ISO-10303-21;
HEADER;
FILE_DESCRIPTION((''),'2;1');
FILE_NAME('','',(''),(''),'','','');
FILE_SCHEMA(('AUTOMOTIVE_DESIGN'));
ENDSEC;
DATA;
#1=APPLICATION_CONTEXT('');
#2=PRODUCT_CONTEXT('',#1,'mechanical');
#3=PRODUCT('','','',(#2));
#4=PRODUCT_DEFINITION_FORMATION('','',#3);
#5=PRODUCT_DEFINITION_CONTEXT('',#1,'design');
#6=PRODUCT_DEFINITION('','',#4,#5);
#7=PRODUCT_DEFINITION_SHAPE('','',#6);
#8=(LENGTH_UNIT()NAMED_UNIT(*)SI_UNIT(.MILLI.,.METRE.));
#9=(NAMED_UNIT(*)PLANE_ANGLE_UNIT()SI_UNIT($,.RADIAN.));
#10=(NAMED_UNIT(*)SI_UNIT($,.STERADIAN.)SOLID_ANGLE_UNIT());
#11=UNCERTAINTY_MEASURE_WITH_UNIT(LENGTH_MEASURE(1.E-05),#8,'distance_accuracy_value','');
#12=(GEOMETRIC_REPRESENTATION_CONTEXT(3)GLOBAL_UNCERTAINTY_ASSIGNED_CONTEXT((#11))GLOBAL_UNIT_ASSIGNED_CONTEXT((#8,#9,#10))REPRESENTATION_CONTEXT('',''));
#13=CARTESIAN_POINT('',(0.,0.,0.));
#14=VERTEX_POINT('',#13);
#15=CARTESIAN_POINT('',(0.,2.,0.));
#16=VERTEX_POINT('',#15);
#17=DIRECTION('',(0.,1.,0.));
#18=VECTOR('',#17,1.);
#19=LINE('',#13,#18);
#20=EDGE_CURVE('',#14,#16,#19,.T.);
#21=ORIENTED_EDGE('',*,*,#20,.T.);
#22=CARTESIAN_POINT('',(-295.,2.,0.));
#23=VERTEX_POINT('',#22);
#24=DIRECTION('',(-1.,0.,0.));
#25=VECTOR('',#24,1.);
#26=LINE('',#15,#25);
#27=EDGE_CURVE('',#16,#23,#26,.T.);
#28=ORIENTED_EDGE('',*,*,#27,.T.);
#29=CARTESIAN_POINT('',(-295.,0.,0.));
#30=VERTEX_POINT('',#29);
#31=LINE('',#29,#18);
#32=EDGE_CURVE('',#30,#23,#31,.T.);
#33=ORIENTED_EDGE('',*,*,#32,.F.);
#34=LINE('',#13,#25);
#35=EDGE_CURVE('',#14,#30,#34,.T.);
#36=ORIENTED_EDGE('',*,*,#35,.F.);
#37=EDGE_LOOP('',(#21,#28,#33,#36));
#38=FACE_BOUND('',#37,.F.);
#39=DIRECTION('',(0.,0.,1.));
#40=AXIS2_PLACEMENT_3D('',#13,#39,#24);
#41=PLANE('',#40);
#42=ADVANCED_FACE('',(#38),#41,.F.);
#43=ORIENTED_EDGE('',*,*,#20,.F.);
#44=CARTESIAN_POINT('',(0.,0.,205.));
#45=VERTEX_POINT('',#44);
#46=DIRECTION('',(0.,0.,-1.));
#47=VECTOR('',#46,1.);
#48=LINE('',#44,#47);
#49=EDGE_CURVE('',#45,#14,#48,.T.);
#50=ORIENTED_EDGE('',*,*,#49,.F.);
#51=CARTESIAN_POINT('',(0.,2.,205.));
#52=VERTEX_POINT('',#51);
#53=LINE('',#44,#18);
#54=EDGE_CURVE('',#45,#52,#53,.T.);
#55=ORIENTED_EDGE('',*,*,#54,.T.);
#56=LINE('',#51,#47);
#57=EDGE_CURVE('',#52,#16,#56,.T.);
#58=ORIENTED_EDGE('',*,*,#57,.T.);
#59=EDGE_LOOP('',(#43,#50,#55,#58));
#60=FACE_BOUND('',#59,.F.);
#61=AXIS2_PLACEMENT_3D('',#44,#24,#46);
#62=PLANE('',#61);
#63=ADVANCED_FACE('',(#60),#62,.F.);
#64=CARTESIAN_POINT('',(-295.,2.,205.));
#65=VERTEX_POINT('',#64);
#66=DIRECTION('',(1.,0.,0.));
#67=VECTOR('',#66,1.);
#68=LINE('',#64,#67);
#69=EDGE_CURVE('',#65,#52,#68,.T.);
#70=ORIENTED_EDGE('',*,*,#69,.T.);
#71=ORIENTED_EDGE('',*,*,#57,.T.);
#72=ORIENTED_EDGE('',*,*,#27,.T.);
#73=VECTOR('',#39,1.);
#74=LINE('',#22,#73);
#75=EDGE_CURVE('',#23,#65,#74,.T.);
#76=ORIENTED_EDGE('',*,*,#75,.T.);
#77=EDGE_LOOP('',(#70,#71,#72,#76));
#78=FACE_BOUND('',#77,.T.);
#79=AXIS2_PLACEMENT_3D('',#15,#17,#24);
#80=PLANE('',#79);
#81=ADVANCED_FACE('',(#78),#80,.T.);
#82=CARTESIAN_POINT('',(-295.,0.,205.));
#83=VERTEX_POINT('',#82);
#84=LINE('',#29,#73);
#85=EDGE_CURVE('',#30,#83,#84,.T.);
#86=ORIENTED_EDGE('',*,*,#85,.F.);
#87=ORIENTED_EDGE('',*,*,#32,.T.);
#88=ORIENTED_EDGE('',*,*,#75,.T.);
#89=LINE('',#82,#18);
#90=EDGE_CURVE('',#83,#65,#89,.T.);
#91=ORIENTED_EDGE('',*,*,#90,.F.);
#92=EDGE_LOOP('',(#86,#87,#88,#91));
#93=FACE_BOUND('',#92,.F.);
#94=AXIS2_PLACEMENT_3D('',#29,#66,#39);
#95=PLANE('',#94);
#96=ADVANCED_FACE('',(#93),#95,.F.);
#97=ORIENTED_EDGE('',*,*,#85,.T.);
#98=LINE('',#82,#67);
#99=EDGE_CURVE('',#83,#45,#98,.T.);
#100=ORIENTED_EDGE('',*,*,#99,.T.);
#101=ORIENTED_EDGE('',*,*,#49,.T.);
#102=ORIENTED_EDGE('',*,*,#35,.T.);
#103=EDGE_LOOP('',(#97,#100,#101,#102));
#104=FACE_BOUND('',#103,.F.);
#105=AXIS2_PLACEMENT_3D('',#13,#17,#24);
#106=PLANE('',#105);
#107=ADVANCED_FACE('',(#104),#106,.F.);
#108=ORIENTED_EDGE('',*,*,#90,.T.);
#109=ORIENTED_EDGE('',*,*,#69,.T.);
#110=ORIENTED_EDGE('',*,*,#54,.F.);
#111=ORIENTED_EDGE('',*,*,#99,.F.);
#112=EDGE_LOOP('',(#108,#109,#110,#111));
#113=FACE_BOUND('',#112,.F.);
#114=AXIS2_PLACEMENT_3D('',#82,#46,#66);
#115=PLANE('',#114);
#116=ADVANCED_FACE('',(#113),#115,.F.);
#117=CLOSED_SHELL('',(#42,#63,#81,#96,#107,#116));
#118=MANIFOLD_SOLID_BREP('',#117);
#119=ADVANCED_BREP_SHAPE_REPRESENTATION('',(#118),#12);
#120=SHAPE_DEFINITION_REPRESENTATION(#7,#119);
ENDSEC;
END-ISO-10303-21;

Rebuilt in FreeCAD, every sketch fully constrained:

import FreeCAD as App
import Part
import Sketcher

V = App.Vector


def add_polygon(sketch, points):
    """Adds a closed chain of lines whose ends are joined by coincident constraints."""
    first, n = sketch.GeometryCount, len(points)
    for a, b in zip(points, points[1:] + points[:1]):
        sketch.addGeometry(Part.LineSegment(App.Vector(*a, 0), App.Vector(*b, 0)), False)
    for i in range(n):
        sketch.addConstraint(Sketcher.Constraint("Coincident", first + i, 2, first + (i + 1) % n, 1))

doc = App.newDocument("Part")
body = doc.addObject("PartDesign::Body", "Body")

# Sketch on XZ plane
sketch1 = body.newObject("Sketcher::SketchObject", "Sketch")
sketch1.AttachmentSupport = (doc.getObject("XZ_Plane"), [""])
sketch1.MapMode = "FlatFace"
add_polygon(sketch1, [(0, 205), (0, 0), (-295, 0), (-295, 205)])  # lines 0-3
sketch1.addConstraint(Sketcher.Constraint("Vertical", 0))
sketch1.addConstraint(Sketcher.Constraint("Horizontal", 1))
sketch1.addConstraint(Sketcher.Constraint("Vertical", 2))
sketch1.addConstraint(Sketcher.Constraint("Horizontal", 3))
sketch1.addConstraint(Sketcher.Constraint("Coincident", 0, 2, -1, 1))
sketch1.addConstraint(Sketcher.Constraint("DistanceX", 1, 2, 1, 1, 295.0))
sketch1.addConstraint(Sketcher.Constraint("DistanceY", 0, 2, 0, 1, 205.0))
pad1 = body.newObject("PartDesign::Pad", "Pad")
pad1.Profile = sketch1
pad1.Length = 2
pad1.Reversed = True

doc.recompute()
